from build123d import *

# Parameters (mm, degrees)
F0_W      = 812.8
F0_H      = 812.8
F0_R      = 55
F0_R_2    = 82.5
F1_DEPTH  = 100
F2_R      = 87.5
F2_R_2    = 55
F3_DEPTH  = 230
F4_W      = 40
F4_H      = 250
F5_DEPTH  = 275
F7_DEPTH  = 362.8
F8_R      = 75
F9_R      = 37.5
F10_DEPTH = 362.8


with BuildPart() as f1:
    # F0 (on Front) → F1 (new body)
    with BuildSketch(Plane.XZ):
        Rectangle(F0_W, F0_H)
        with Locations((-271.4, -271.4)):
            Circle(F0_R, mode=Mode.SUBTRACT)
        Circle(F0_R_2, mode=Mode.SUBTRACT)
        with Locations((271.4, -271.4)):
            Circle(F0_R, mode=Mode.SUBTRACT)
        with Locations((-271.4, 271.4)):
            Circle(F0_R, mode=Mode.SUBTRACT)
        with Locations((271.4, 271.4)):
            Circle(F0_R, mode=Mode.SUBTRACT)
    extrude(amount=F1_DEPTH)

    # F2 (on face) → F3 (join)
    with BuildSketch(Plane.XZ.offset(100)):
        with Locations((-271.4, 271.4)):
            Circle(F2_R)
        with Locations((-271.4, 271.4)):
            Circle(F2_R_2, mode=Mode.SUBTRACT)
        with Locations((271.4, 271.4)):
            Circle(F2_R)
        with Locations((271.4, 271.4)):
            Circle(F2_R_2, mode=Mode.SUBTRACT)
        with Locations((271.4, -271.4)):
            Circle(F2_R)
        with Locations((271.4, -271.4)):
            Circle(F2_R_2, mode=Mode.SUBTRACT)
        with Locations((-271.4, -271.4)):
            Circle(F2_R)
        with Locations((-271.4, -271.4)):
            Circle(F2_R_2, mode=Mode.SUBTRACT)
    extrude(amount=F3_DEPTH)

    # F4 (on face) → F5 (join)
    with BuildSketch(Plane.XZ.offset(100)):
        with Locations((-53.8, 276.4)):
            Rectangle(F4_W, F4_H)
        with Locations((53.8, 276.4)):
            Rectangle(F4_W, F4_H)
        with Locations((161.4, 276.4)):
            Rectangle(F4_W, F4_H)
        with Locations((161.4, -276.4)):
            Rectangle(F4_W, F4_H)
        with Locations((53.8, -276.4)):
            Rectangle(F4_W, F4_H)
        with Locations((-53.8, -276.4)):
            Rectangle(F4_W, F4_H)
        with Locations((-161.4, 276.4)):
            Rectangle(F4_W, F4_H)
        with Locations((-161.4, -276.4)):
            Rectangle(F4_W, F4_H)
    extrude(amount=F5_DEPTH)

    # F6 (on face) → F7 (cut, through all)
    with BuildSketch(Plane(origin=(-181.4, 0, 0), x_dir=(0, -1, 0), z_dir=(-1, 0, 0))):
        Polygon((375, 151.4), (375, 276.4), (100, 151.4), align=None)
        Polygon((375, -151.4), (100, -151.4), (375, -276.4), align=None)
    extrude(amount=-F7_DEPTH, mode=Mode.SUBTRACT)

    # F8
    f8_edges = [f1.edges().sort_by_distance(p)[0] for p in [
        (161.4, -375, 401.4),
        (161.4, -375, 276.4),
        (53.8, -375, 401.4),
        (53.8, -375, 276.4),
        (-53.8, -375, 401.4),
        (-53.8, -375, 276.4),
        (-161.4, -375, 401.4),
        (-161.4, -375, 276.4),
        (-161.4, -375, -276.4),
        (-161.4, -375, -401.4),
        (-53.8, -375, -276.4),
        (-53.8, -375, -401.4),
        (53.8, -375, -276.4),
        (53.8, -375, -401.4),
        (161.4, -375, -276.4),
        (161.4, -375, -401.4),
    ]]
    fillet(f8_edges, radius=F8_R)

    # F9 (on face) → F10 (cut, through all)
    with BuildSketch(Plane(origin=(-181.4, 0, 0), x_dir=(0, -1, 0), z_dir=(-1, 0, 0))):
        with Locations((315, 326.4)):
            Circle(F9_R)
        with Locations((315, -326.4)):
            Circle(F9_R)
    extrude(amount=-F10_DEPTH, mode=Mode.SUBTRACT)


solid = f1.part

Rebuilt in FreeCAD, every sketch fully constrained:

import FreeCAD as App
import Part
import Sketcher


def edges_at(feature, points):
    """Names of the edges that pass closest to the given points."""
    edges = feature.Shape.Edges
    near = lambda p: min(range(len(edges)), key=lambda i: edges[i].distToShape(Part.Vertex(*p))[0])
    return sorted({f"Edge{near(p) + 1}" for p in points})

doc = App.newDocument("Part")
body = doc.addObject("PartDesign::Body", "Body")

sketch1 = body.newObject("Sketcher::SketchObject", "Sketch")
sketch1.AttachmentSupport = (doc.getObject("XZ_Plane"), [""])
sketch1.MapMode = "FlatFace"
sketch1.addGeometry(Part.LineSegment(App.Vector(-406.4, 406.4, 0), App.Vector(-406.4, -406.4, 0)), False)
sketch1.addGeometry(Part.LineSegment(App.Vector(-406.4, -406.4, 0), App.Vector(406.4, -406.4, 0)), False)
sketch1.addGeometry(Part.LineSegment(App.Vector(406.4, -406.4, 0), App.Vector(406.4, 406.4, 0)), False)
sketch1.addGeometry(Part.LineSegment(App.Vector(406.4, 406.4, 0), App.Vector(-406.4, 406.4, 0)), False)
sketch1.addGeometry(Part.Circle(App.Vector(-271.4, -271.4, 0), App.Vector(0, 0, 1), 55), False)
sketch1.addGeometry(Part.Circle(App.Vector(271.4, -271.4, 0), App.Vector(0, 0, 1), 55), False)
sketch1.addGeometry(Part.Circle(App.Vector(-271.4, 271.4, 0), App.Vector(0, 0, 1), 55), False)
sketch1.addGeometry(Part.Circle(App.Vector(0, 0, 0), App.Vector(0, 0, 1), 82.5), False)
sketch1.addGeometry(Part.Circle(App.Vector(271.4, 271.4, 0), App.Vector(0, 0, 1), 55), False)
sketch1.addConstraint(Sketcher.Constraint("Coincident", 0, 2, 1, 1))
sketch1.addConstraint(Sketcher.Constraint("Coincident", 1, 2, 2, 1))
sketch1.addConstraint(Sketcher.Constraint("Coincident", 2, 2, 3, 1))
sketch1.addConstraint(Sketcher.Constraint("Coincident", 3, 2, 0, 1))
sketch1.addConstraint(Sketcher.Constraint("Vertical", 0))
sketch1.addConstraint(Sketcher.Constraint("Horizontal", 1))
sketch1.addConstraint(Sketcher.Constraint("Vertical", 2))
sketch1.addConstraint(Sketcher.Constraint("Horizontal", 3))
sketch1.addConstraint(Sketcher.Constraint("Coincident", 7, 3, -1, 1))
sketch1.addConstraint(Sketcher.Constraint("Equal", 4, 5))
sketch1.addConstraint(Sketcher.Constraint("Equal", 5, 6))
sketch1.addConstraint(Sketcher.Constraint("Equal", 6, 8))
sketch1.addConstraint(Sketcher.Constraint("Symmetric", 5, 3, 6, 3, -1, 1))
sketch1.addConstraint(Sketcher.Constraint("Symmetric", 4, 3, 8, 3, -1, 1))
sketch1.addConstraint(Sketcher.Constraint("Symmetric", 0, 2, 2, 2, -1, 1))
sketch1.addConstraint(Sketcher.Constraint("Symmetric", 4, 3, 5, 3, -2))
sketch1.addConstraint(Sketcher.Constraint("Equal", 3, 0))
sketch1.addConstraint(Sketcher.Constraint("Diameter", 4, 110.0))
sketch1.addConstraint(Sketcher.Constraint("Diameter", 7, 165.0))
sketch1.addConstraint(Sketcher.Constraint("DistanceX", 1, 1, 1, 2, 812.8))
sketch1.addConstraint(Sketcher.Constraint("DistanceX", 0, 2, 4, 3, 135.0))
sketch1.addConstraint(Sketcher.Constraint("DistanceY", 0, 2, 4, 3, 135.0))
pad1 = body.newObject("PartDesign::Pad", "Pad")
pad1.Profile = sketch1
pad1.Length = 100

sketch2 = body.newObject("Sketcher::SketchObject", "Sketch001")
sketch2.AttachmentSupport = (doc.getObject("XZ_Plane"), [""])
sketch2.MapMode = "FlatFace"
sketch2.AttachmentOffset = App.Placement(App.Vector(0, 0, 100), App.Rotation())
sketch2.addGeometry(Part.Circle(App.Vector(-271.4, 271.4, 0), App.Vector(0, 0, 1), 87.5), False)
sketch2.addGeometry(Part.Circle(App.Vector(-271.4, 271.4, 0), App.Vector(0, 0, 1), 55), False)
sketch2.addGeometry(Part.Circle(App.Vector(271.4, 271.4, 0), App.Vector(0, 0, 1), 87.5), False)
sketch2.addGeometry(Part.Circle(App.Vector(271.4, 271.4, 0), App.Vector(0, 0, 1), 55), False)
sketch2.addGeometry(Part.Circle(App.Vector(271.4, -271.4, 0), App.Vector(0, 0, 1), 87.5), False)
sketch2.addGeometry(Part.Circle(App.Vector(271.4, -271.4, 0), App.Vector(0, 0, 1), 55), False)
sketch2.addGeometry(Part.Circle(App.Vector(-271.4, -271.4, 0), App.Vector(0, 0, 1), 87.5), False)
sketch2.addGeometry(Part.Circle(App.Vector(-271.4, -271.4, 0), App.Vector(0, 0, 1), 55), False)
sketch2.addConstraint(Sketcher.Constraint("Coincident", 1, 3, 0, 3))
sketch2.addConstraint(Sketcher.Constraint("Coincident", 3, 3, 2, 3))
sketch2.addConstraint(Sketcher.Constraint("Coincident", 5, 3, 4, 3))
sketch2.addConstraint(Sketcher.Constraint("Coincident", 7, 3, 6, 3))
sketch2.addConstraint(Sketcher.Constraint("Equal", 0, 2))
sketch2.addConstraint(Sketcher.Constraint("Equal", 1, 3))
sketch2.addConstraint(Sketcher.Constraint("Equal", 2, 4))
sketch2.addConstraint(Sketcher.Constraint("Equal", 3, 5))
sketch2.addConstraint(Sketcher.Constraint("Equal", 4, 6))
sketch2.addConstraint(Sketcher.Constraint("Equal", 5, 7))
sketch2.addConstraint(Sketcher.Constraint("Symmetric", 0, 3, 4, 3, -1, 1))
sketch2.addConstraint(Sketcher.Constraint("Symmetric", 2, 3, 6, 3, -1, 1))
sketch2.addConstraint(Sketcher.Constraint("Symmetric", 0, 3, 2, 3, -2))
sketch2.addConstraint(Sketcher.Constraint("Diameter", 0, 175.0))
sketch2.addConstraint(Sketcher.Constraint("Diameter", 1, 110.0))
sketch2.addConstraint(Sketcher.Constraint("DistanceX", 0, 3, -1, 1, 271.4))
sketch2.addConstraint(Sketcher.Constraint("DistanceY", -1, 1, 0, 3, 271.4))
pad2 = body.newObject("PartDesign::Pad", "Pad001")
pad2.Profile = sketch2
pad2.Length = 230

sketch3 = body.newObject("Sketcher::SketchObject", "Sketch002")
sketch3.AttachmentSupport = (doc.getObject("XZ_Plane"), [""])
sketch3.MapMode = "FlatFace"
sketch3.AttachmentOffset = App.Placement(App.Vector(0, 0, 100), App.Rotation())
sketch3.addGeometry(Part.LineSegment(App.Vector(-73.8, 401.4, 0), App.Vector(-73.8, 151.4, 0)), False)
sketch3.addGeometry(Part.LineSegment(App.Vector(-73.8, 151.4, 0), App.Vector(-33.8, 151.4, 0)), False)
sketch3.addGeometry(Part.LineSegment(App.Vector(-33.8, 151.4, 0), App.Vector(-33.8, 401.4, 0)), False)
sketch3.addGeometry(Part.LineSegment(App.Vector(-33.8, 401.4, 0), App.Vector(-73.8, 401.4, 0)), False)
sketch3.addGeometry(Part.LineSegment(App.Vector(33.8, 401.4, 0), App.Vector(33.8, 151.4, 0)), False)
sketch3.addGeometry(Part.LineSegment(App.Vector(33.8, 151.4, 0), App.Vector(73.8, 151.4, 0)), False)
sketch3.addGeometry(Part.LineSegment(App.Vector(73.8, 151.4, 0), App.Vector(73.8, 401.4, 0)), False)
sketch3.addGeometry(Part.LineSegment(App.Vector(73.8, 401.4, 0), App.Vector(33.8, 401.4, 0)), False)
sketch3.addGeometry(Part.LineSegment(App.Vector(141.4, 401.4, 0), App.Vector(141.4, 151.4, 0)), False)
sketch3.addGeometry(Part.LineSegment(App.Vector(141.4, 151.4, 0), App.Vector(181.4, 151.4, 0)), False)
sketch3.addGeometry(Part.LineSegment(App.Vector(181.4, 151.4, 0), App.Vector(181.4, 401.4, 0)), False)
sketch3.addGeometry(Part.LineSegment(App.Vector(181.4, 401.4, 0), App.Vector(141.4, 401.4, 0)), False)
sketch3.addGeometry(Part.LineSegment(App.Vector(141.4, -151.4, 0), App.Vector(141.4, -401.4, 0)), False)
sketch3.addGeometry(Part.LineSegment(App.Vector(141.4, -401.4, 0), App.Vector(181.4, -401.4, 0)), False)
sketch3.addGeometry(Part.LineSegment(App.Vector(181.4, -401.4, 0), App.Vector(181.4, -151.4, 0)), False)
sketch3.addGeometry(Part.LineSegment(App.Vector(181.4, -151.4, 0), App.Vector(141.4, -151.4, 0)), False)
sketch3.addGeometry(Part.LineSegment(App.Vector(33.8, -151.4, 0), App.Vector(33.8, -401.4, 0)), False)
sketch3.addGeometry(Part.LineSegment(App.Vector(33.8, -401.4, 0), App.Vector(73.8, -401.4, 0)), False)
sketch3.addGeometry(Part.LineSegment(App.Vector(73.8, -401.4, 0), App.Vector(73.8, -151.4, 0)), False)
sketch3.addGeometry(Part.LineSegment(App.Vector(73.8, -151.4, 0), App.Vector(33.8, -151.4, 0)), False)
sketch3.addGeometry(Part.LineSegment(App.Vector(-73.8, -151.4, 0), App.Vector(-73.8, -401.4, 0)), False)
sketch3.addGeometry(Part.LineSegment(App.Vector(-73.8, -401.4, 0), App.Vector(-33.8, -401.4, 0)), False)
sketch3.addGeometry(Part.LineSegment(App.Vector(-33.8, -401.4, 0), App.Vector(-33.8, -151.4, 0)), False)
sketch3.addGeometry(Part.LineSegment(App.Vector(-33.8, -151.4, 0), App.Vector(-73.8, -151.4, 0)), False)
sketch3.addGeometry(Part.LineSegment(App.Vector(-181.4, 401.4, 0), App.Vector(-181.4, 151.4, 0)), False)
sketch3.addGeometry(Part.LineSegment(App.Vector(-181.4, 151.4, 0), App.Vector(-141.4, 151.4, 0)), False)
sketch3.addGeometry(Part.LineSegment(App.Vector(-141.4, 151.4, 0), App.Vector(-141.4, 401.4, 0)), False)
sketch3.addGeometry(Part.LineSegment(App.Vector(-141.4, 401.4, 0), App.Vector(-181.4, 401.4, 0)), False)
sketch3.addGeometry(Part.LineSegment(App.Vector(-181.4, -151.4, 0), App.Vector(-181.4, -401.4, 0)), False)
sketch3.addGeometry(Part.LineSegment(App.Vector(-181.4, -401.4, 0), App.Vector(-141.4, -401.4, 0)), False)
sketch3.addGeometry(Part.LineSegment(App.Vector(-141.4, -401.4, 0), App.Vector(-141.4, -151.4, 0)), False)
sketch3.addGeometry(Part.LineSegment(App.Vector(-141.4, -151.4, 0), App.Vector(-181.4, -151.4, 0)), False)
sketch3.addConstraint(Sketcher.Constraint("Coincident", 0, 2, 1, 1))
sketch3.addConstraint(Sketcher.Constraint("Coincident", 1, 2, 2, 1))
sketch3.addConstraint(Sketcher.Constraint("Coincident", 2, 2, 3, 1))
sketch3.addConstraint(Sketcher.Constraint("Coincident", 3, 2, 0, 1))
sketch3.addConstraint(Sketcher.Constraint("Coincident", 4, 2, 5, 1))
sketch3.addConstraint(Sketcher.Constraint("Coincident", 5, 2, 6, 1))
sketch3.addConstraint(Sketcher.Constraint("Coincident", 6, 2, 7, 1))
sketch3.addConstraint(Sketcher.Constraint("Coincident", 7, 2, 4, 1))
sketch3.addConstraint(Sketcher.Constraint("Coincident", 8, 2, 9, 1))
sketch3.addConstraint(Sketcher.Constraint("Coincident", 9, 2, 10, 1))
sketch3.addConstraint(Sketcher.Constraint("Coincident", 10, 2, 11, 1))
sketch3.addConstraint(Sketcher.Constraint("Coincident", 11, 2, 8, 1))
sketch3.addConstraint(Sketcher.Constraint("Coincident", 12, 2, 13, 1))
sketch3.addConstraint(Sketcher.Constraint("Coincident", 13, 2, 14, 1))
sketch3.addConstraint(Sketcher.Constraint("Coincident", 14, 2, 15, 1))
sketch3.addConstraint(Sketcher.Constraint("Coincident", 15, 2, 12, 1))
sketch3.addConstraint(Sketcher.Constraint("Coincident", 16, 2, 17, 1))
sketch3.addConstraint(Sketcher.Constraint("Coincident", 17, 2, 18, 1))
sketch3.addConstraint(Sketcher.Constraint("Coincident", 18, 2, 19, 1))
sketch3.addConstraint(Sketcher.Constraint("Coincident", 19, 2, 16, 1))
sketch3.addConstraint(Sketcher.Constraint("Coincident", 20, 2, 21, 1))
sketch3.addConstraint(Sketcher.Constraint("Coincident", 21, 2, 22, 1))
sketch3.addConstraint(Sketcher.Constraint("Coincident", 22, 2, 23, 1))
sketch3.addConstraint(Sketcher.Constraint("Coincident", 23, 2, 20, 1))
sketch3.addConstraint(Sketcher.Constraint("Coincident", 24, 2, 25, 1))
sketch3.addConstraint(Sketcher.Constraint("Coincident", 25, 2, 26, 1))
sketch3.addConstraint(Sketcher.Constraint("Coincident", 26, 2, 27, 1))
sketch3.addConstraint(Sketcher.Constraint("Coincident", 27, 2, 24, 1))
sketch3.addConstraint(Sketcher.Constraint("Coincident", 28, 2, 29, 1))
sketch3.addConstraint(Sketcher.Constraint("Coincident", 29, 2, 30, 1))
sketch3.addConstraint(Sketcher.Constraint("Coincident", 30, 2, 31, 1))
sketch3.addConstraint(Sketcher.Constraint("Coincident", 31, 2, 28, 1))
sketch3.addConstraint(Sketcher.Constraint("Vertical", 0))
sketch3.addConstraint(Sketcher.Constraint("Horizontal", 1))
sketch3.addConstraint(Sketcher.Constraint("Vertical", 2))
sketch3.addConstraint(Sketcher.Constraint("Horizontal", 3))
sketch3.addConstraint(Sketcher.Constraint("Vertical", 4))
sketch3.addConstraint(Sketcher.Constraint("Horizontal", 5))
sketch3.addConstraint(Sketcher.Constraint("Vertical", 6))
sketch3.addConstraint(Sketcher.Constraint("Horizontal", 7))
sketch3.addConstraint(Sketcher.Constraint("Vertical", 8))
sketch3.addConstraint(Sketcher.Constraint("Horizontal", 9))
sketch3.addConstraint(Sketcher.Constraint("Vertical", 10))
sketch3.addConstraint(Sketcher.Constraint("Horizontal", 11))
sketch3.addConstraint(Sketcher.Constraint("Vertical", 12))
sketch3.addConstraint(Sketcher.Constraint("Horizontal", 13))
sketch3.addConstraint(Sketcher.Constraint("Vertical", 14))
sketch3.addConstraint(Sketcher.Constraint("Horizontal", 15))
sketch3.addConstraint(Sketcher.Constraint("Vertical", 16))
sketch3.addConstraint(Sketcher.Constraint("Horizontal", 17))
sketch3.addConstraint(Sketcher.Constraint("Vertical", 18))
sketch3.addConstraint(Sketcher.Constraint("Horizontal", 19))
sketch3.addConstraint(Sketcher.Constraint("Vertical", 20))
sketch3.addConstraint(Sketcher.Constraint("Horizontal", 21))
sketch3.addConstraint(Sketcher.Constraint("Vertical", 22))
sketch3.addConstraint(Sketcher.Constraint("Horizontal", 23))
sketch3.addConstraint(Sketcher.Constraint("Vertical", 24))
sketch3.addConstraint(Sketcher.Constraint("Horizontal", 25))
sketch3.addConstraint(Sketcher.Constraint("Vertical", 26))
sketch3.addConstraint(Sketcher.Constraint("Horizontal", 27))
sketch3.addConstraint(Sketcher.Constraint("Vertical", 28))
sketch3.addConstraint(Sketcher.Constraint("Horizontal", 29))
sketch3.addConstraint(Sketcher.Constraint("Vertical", 30))
sketch3.addConstraint(Sketcher.Constraint("Horizontal", 31))
sketch3.addConstraint(Sketcher.Constraint("Symmetric", 2, 2, 16, 2, -1, 1))
sketch3.addConstraint(Sketcher.Constraint("Symmetric", 0, 2, 18, 2, -1, 1))
sketch3.addConstraint(Sketcher.Constraint("Symmetric", 6, 2, 20, 2, -1, 1))
sketch3.addConstraint(Sketcher.Constraint("Symmetric", 4, 2, 22, 2, -1, 1))
sketch3.addConstraint(Sketcher.Constraint("Symmetric", 14, 2, 24, 2, -1, 1))
sketch3.addConstraint(Sketcher.Constraint("Symmetric", 12, 2, 26, 2, -1, 1))
sketch3.addConstraint(Sketcher.Constraint("Symmetric", 10, 2, 28, 2, -1, 1))
sketch3.addConstraint(Sketcher.Constraint("Symmetric", 8, 2, 30, 2, -1, 1))
sketch3.addConstraint(Sketcher.Constraint("Symmetric", 1, 2, 4, 2, -2))
sketch3.addConstraint(Sketcher.Constraint("Symmetric", 3, 2, 6, 2, -2))
sketch3.addConstraint(Sketcher.Constraint("Symmetric", 9, 2, 24, 2, -2))
sketch3.addConstraint(Sketcher.Constraint("Symmetric", 11, 2, 26, 2, -2))
sketch3.addConstraint(Sketcher.Constraint("Horizontal", 5, 2, 8, 2))
sketch3.addConstraint(Sketcher.Constraint("Horizontal", 7, 2, 10, 2))
sketch3.addConstraint(Sketcher.Constraint("Equal", 7, 9))
sketch3.addConstraint(Sketcher.Constraint("DistanceX", 1, 1, 1, 2, 40.0))
sketch3.addConstraint(Sketcher.Constraint("DistanceY", 0, 2, 0, 1, 250.0))
sketch3.addConstraint(Sketcher.Constraint("DistanceX", 0, 2, -1, 1, 73.8))
sketch3.addConstraint(Sketcher.Constraint("DistanceY", -1, 1, 0, 2, 151.4))
sketch3.addConstraint(Sketcher.Constraint("DistanceX", -1, 1, 8, 2, 141.4))
pad3 = body.newObject("PartDesign::Pad", "Pad002")
pad3.Profile = sketch3
pad3.Length = 275

sketch4 = body.newObject("Sketcher::SketchObject", "Sketch003")
sketch4.AttachmentSupport = (doc.getObject("YZ_Plane"), [""])
sketch4.MapMode = "FlatFace"
sketch4.AttachmentOffset = App.Placement(App.Vector(0, 0, -181.4), App.Rotation())
sketch4.addGeometry(Part.LineSegment(App.Vector(-375, 151.4, 0), App.Vector(-375, 276.4, 0)), False)
sketch4.addGeometry(Part.LineSegment(App.Vector(-375, 276.4, 0), App.Vector(-100, 151.4, 0)), False)
sketch4.addGeometry(Part.LineSegment(App.Vector(-100, 151.4, 0), App.Vector(-375, 151.4, 0)), False)
sketch4.addGeometry(Part.LineSegment(App.Vector(-375, -151.4, 0), App.Vector(-100, -151.4, 0)), False)
sketch4.addGeometry(Part.LineSegment(App.Vector(-100, -151.4, 0), App.Vector(-375, -276.4, 0)), False)
sketch4.addGeometry(Part.LineSegment(App.Vector(-375, -276.4, 0), App.Vector(-375, -151.4, 0)), False)
sketch4.addConstraint(Sketcher.Constraint("Coincident", 0, 2, 1, 1))
sketch4.addConstraint(Sketcher.Constraint("Coincident", 1, 2, 2, 1))
sketch4.addConstraint(Sketcher.Constraint("Coincident", 2, 2, 0, 1))
sketch4.addConstraint(Sketcher.Constraint("Coincident", 3, 2, 4, 1))
sketch4.addConstraint(Sketcher.Constraint("Coincident", 4, 2, 5, 1))
sketch4.addConstraint(Sketcher.Constraint("Coincident", 5, 2, 3, 1))
sketch4.addConstraint(Sketcher.Constraint("Vertical", 0))
sketch4.addConstraint(Sketcher.Constraint("Horizontal", 2))
sketch4.addConstraint(Sketcher.Constraint("Horizontal", 3))
sketch4.addConstraint(Sketcher.Constraint("Vertical", 5))
sketch4.addConstraint(Sketcher.Constraint("Symmetric", 1, 2, 3, 2, -1))
sketch4.addConstraint(Sketcher.Constraint("Symmetric", 0, 2, 4, 2, -1))
sketch4.addConstraint(Sketcher.Constraint("DistanceX", 2, 2, 2, 1, 275.0))
sketch4.addConstraint(Sketcher.Constraint("DistanceY", 0, 1, 0, 2, 125.0))
sketch4.addConstraint(Sketcher.Constraint("DistanceX", 0, 2, -1, 1, 375.0))
sketch4.addConstraint(Sketcher.Constraint("DistanceY", -1, 1, 0, 2, 276.4))
pocket1 = body.newObject("PartDesign::Pocket", "Pocket")
pocket1.Profile = sketch4
pocket1.Length = 362.8
pocket1.Reversed = True
doc.recompute()

fillet = body.newObject("PartDesign::Fillet", "Fillet")
fillet.Base = (pocket1, edges_at(pocket1, [
    (161.4, -375, 401.4),
    (161.4, -375, 276.4),
    (53.8, -375, 401.4),
    (53.8, -375, 276.4),
    (-53.8, -375, 401.4),
    (-53.8, -375, 276.4),
    (-161.4, -375, 401.4),
    (-161.4, -375, 276.4),
    (-161.4, -375, -276.4),
    (-161.4, -375, -401.4),
    (-53.8, -375, -276.4),
    (-53.8, -375, -401.4),
    (53.8, -375, -276.4),
    (53.8, -375, -401.4),
    (161.4, -375, -276.4),
    (161.4, -375, -401.4),
]))
fillet.Radius = 75

sketch5 = body.newObject("Sketcher::SketchObject", "Sketch004")
sketch5.AttachmentSupport = (doc.getObject("YZ_Plane"), [""])
sketch5.MapMode = "FlatFace"
sketch5.AttachmentOffset = App.Placement(App.Vector(0, 0, -181.4), App.Rotation())
sketch5.addGeometry(Part.Circle(App.Vector(-315, 326.4, 0), App.Vector(0, 0, 1), 37.5), False)
sketch5.addGeometry(Part.Circle(App.Vector(-315, -326.4, 0), App.Vector(0, 0, 1), 37.5), False)
sketch5.addConstraint(Sketcher.Constraint("Equal", 0, 1))
sketch5.addConstraint(Sketcher.Constraint("Symmetric", 0, 3, 1, 3, -1))
sketch5.addConstraint(Sketcher.Constraint("Diameter", 0, 75.0))
sketch5.addConstraint(Sketcher.Constraint("DistanceX", 0, 3, -1, 1, 315.0))
sketch5.addConstraint(Sketcher.Constraint("DistanceY", -1, 1, 0, 3, 326.4))
pocket2 = body.newObject("PartDesign::Pocket", "Pocket001")
pocket2.Profile = sketch5
pocket2.Length = 362.8
pocket2.Reversed = True

doc.recompute()
